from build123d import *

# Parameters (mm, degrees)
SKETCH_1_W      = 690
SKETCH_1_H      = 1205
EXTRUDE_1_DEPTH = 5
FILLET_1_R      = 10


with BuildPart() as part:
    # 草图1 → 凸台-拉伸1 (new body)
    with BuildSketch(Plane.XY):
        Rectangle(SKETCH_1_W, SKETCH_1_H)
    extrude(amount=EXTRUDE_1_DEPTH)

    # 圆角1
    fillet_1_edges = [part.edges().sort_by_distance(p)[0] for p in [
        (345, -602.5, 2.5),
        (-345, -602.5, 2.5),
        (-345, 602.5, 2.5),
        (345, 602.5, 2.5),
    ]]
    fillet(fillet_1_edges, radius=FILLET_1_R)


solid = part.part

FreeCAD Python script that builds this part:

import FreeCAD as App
import Part
import Sketcher

V = App.Vector


def edges_at(feature, points):
    """Names of the edges that pass closest to the given points."""
    edges = feature.Shape.Edges
    near = lambda p: min(range(len(edges)), key=lambda i: edges[i].distToShape(Part.Vertex(*p))[0])
    return sorted({f"Edge{near(p) + 1}" for p in points})


def add_polygon(sketch, points):
    """Adds a closed chain of lines whose ends are joined by coincident constraints."""
    first, n = sketch.GeometryCount, len(points)
    for a, b in zip(points, points[1:] + points[:1]):
        sketch.addGeometry(Part.LineSegment(App.Vector(*a, 0), App.Vector(*b, 0)), False)
    for i in range(n):
        sketch.addConstraint(Sketcher.Constraint("Coincident", first + i, 2, first + (i + 1) % n, 1))

doc = App.newDocument("Part")
body = doc.addObject("PartDesign::Body", "Body")

sketch1 = body.newObject("Sketcher::SketchObject", "Sketch")
sketch1.AttachmentSupport = (doc.getObject("XY_Plane"), [""])
sketch1.MapMode = "FlatFace"
add_polygon(sketch1, [(-345, 602), (-345, -602), (345, -602), (345, 602)])
sketch1.addConstraint(Sketcher.Constraint("Vertical", 0))
sketch1.addConstraint(Sketcher.Constraint("Horizontal", 1))
sketch1.addConstraint(Sketcher.Constraint("Vertical", 2))
sketch1.addConstraint(Sketcher.Constraint("Horizontal", 3))
sketch1.addConstraint(Sketcher.Constraint("Symmetric", 0, 2, 2, 2, -1, 1))
sketch1.addConstraint(Sketcher.Constraint("DistanceX", 1, 1, 1, 2, 690.0))
sketch1.addConstraint(Sketcher.Constraint("DistanceY", 0, 2, 0, 1, 1205.0))
pad1 = body.newObject("PartDesign::Pad", "Pad")
pad1.Profile = sketch1
pad1.Length = 5
doc.recompute()

fillet = body.newObject("PartDesign::Fillet", "Fillet")
fillet.Base = (pad1, edges_at(pad1, [
    (345, -602.5, 2.5),
    (-345, -602.5, 2.5),
    (-345, 602.5, 2.5),
    (345, 602.5, 2.5),
]))
fillet.Radius = 10

doc.recompute()
